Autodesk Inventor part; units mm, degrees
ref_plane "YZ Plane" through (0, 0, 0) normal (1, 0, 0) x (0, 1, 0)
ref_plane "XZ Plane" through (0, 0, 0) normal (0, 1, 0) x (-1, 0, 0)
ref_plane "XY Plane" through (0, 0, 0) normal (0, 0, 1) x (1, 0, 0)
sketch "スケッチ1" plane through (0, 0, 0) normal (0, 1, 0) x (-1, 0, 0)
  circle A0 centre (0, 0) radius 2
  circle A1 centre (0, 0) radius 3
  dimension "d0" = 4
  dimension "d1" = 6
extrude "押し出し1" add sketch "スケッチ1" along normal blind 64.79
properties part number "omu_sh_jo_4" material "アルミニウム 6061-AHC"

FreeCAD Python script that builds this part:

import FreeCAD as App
import Part
import Sketcher
from FreeCAD import Vector
Q = App.Units.Quantity

doc = App.newDocument("Part")
body = doc.addObject("PartDesign::Body", "Body")

# Sketch on XZ plane
sketch1 = body.newObject("Sketcher::SketchObject", "Sketch")
sketch1.AttachmentSupport = (doc.getObject("XZ_Plane"), [""])
sketch1.MapMode = "FlatFace"
sketch1.addGeometry([
    Part.Circle(Vector(0, 0, 0), Vector(0, 0, 1), 3),
    Part.Circle(Vector(0, 0, 0), Vector(0, 0, 1), 2),
], False)
sketch1.addConstraint([
    Sketcher.Constraint("Coincident", 0, 3, -1, 1),
    Sketcher.Constraint("Coincident", 1, 3, -1, 1),
    Sketcher.Constraint("Diameter", 0, Q("6 mm")),
    Sketcher.Constraint("Diameter", 1, Q("4 mm")),
])
pad1 = body.newObject("PartDesign::Pad", "Pad")
pad1.Profile = sketch1
pad1.Length = 64.79
pad1.Reversed = True

doc.recompute()
